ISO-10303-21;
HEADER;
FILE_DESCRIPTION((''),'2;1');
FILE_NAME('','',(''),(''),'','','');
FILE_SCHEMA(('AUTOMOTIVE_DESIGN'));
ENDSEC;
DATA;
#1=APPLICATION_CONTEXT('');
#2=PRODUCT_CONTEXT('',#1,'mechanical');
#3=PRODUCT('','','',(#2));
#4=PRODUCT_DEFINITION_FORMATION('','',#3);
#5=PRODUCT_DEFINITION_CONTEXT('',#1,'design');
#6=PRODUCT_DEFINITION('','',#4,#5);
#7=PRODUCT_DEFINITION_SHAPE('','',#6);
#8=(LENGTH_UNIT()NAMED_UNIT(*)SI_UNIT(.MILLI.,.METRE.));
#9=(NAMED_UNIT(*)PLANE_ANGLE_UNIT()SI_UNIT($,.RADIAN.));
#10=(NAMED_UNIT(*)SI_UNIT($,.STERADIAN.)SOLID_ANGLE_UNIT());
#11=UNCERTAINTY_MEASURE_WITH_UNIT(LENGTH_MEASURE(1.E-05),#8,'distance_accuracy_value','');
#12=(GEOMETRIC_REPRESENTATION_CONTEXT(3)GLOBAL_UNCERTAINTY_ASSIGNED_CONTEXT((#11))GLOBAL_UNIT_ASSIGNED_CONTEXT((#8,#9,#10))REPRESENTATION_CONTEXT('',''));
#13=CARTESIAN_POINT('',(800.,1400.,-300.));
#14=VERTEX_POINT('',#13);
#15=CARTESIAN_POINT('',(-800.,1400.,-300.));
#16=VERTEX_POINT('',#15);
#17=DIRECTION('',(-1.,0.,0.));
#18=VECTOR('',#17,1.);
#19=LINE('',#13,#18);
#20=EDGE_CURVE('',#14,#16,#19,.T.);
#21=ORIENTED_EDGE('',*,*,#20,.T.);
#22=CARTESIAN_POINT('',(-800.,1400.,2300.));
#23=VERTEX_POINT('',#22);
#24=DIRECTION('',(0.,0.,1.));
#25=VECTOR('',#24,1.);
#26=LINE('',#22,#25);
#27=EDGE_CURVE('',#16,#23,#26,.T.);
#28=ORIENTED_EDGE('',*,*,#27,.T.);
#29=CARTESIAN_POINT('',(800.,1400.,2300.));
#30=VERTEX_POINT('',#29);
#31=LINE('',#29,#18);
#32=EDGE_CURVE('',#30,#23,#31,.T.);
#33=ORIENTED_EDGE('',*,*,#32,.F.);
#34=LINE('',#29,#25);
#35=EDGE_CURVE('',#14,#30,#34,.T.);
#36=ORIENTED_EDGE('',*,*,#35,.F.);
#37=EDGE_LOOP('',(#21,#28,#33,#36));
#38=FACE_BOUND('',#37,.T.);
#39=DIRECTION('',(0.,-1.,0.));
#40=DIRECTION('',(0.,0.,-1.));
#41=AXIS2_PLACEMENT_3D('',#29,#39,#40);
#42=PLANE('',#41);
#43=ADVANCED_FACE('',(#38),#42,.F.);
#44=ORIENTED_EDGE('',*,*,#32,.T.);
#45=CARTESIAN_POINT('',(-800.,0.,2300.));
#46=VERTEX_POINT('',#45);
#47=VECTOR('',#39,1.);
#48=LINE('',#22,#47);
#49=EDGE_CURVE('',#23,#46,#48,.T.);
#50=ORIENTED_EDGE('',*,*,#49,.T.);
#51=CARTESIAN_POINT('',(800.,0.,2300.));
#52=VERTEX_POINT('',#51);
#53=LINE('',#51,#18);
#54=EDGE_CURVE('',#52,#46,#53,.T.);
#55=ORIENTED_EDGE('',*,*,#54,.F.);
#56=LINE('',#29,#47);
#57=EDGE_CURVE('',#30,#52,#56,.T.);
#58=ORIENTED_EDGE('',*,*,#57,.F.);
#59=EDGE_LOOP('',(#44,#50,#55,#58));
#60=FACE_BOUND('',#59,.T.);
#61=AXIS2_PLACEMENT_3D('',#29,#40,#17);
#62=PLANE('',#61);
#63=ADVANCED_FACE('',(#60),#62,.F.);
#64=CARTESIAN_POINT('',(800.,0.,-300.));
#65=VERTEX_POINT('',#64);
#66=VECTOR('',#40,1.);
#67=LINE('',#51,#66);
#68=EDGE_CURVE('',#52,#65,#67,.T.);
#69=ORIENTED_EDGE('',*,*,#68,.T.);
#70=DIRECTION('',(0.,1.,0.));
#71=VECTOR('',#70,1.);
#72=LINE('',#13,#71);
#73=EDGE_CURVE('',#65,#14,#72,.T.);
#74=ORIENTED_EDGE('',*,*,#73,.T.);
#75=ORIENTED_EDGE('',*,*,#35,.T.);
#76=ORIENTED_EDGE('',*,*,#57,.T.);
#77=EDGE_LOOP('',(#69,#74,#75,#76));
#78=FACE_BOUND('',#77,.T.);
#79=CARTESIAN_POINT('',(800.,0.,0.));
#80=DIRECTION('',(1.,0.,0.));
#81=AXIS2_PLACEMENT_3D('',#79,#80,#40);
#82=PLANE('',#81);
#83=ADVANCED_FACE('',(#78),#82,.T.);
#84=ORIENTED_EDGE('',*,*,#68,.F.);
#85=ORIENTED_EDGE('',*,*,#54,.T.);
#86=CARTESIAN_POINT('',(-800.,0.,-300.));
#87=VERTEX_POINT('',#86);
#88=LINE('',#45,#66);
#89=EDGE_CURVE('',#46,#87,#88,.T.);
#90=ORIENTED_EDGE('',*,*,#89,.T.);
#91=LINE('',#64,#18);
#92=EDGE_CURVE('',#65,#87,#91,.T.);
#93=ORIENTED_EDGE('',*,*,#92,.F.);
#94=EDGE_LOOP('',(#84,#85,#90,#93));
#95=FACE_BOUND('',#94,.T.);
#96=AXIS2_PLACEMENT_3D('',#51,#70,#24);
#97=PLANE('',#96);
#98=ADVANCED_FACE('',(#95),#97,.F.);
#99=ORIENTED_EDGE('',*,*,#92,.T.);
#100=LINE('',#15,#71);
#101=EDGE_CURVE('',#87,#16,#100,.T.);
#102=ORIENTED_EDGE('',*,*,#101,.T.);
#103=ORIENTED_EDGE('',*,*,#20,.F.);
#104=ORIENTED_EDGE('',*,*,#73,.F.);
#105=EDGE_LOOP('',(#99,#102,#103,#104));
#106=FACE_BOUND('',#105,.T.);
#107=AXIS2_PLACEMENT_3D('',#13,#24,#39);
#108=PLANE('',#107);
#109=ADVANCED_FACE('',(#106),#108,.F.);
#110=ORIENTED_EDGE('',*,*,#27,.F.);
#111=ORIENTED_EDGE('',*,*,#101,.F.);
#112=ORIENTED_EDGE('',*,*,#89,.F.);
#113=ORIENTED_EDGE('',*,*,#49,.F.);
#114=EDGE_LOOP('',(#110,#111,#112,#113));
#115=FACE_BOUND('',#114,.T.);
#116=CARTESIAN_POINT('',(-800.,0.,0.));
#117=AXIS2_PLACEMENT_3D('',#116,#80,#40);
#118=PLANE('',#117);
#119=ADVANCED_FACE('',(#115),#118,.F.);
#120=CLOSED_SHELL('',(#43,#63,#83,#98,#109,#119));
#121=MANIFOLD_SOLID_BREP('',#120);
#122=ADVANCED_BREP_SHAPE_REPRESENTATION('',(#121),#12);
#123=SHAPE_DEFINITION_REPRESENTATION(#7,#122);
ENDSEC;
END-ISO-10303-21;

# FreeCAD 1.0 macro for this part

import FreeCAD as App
import Part
import Sketcher
from FreeCAD import Vector
Q = App.Units.Quantity

doc = App.newDocument("Part")
body = doc.addObject("PartDesign::Body", "Body")

# Sketch on YZ plane
sketch1 = body.newObject("Sketcher::SketchObject", "Sketch")
sketch1.AttachmentSupport = (doc.getObject("YZ_Plane"), [""])
sketch1.MapMode = "FlatFace"
sketch1.addGeometry([
    Part.LineSegment(Vector(1400, 2300, 0), Vector(0, 2300, 0)),
    Part.LineSegment(Vector(0, 2300, 0), Vector(0, -300, 0)),
    Part.LineSegment(Vector(0, -300, 0), Vector(1400, -300, 0)),
    Part.LineSegment(Vector(1400, -300, 0), Vector(1400, 2300, 0)),
], False)
sketch1.addConstraint([
    Sketcher.Constraint("Coincident", 0, 2, 1, 1),
    Sketcher.Constraint("Coincident", 1, 2, 2, 1),
    Sketcher.Constraint("Coincident", 2, 2, 3, 1),
    Sketcher.Constraint("Coincident", 3, 2, 0, 1),
    Sketcher.Constraint("Horizontal", 0),
    Sketcher.Constraint("Vertical", 1),
    Sketcher.Constraint("Horizontal", 2),
    Sketcher.Constraint("Vertical", 3),
    Sketcher.Constraint("PointOnObject", 0, 2, -2),
    Sketcher.Constraint("DistanceX", 0, 2, 0, 1, Q("1400 mm")),
    Sketcher.Constraint("DistanceY", 1, 2, 1, 1, Q("2600 mm")),
    Sketcher.Constraint("DistanceY", -1, 1, 0, 2, Q("2300 mm")),
])
pad1 = body.newObject("PartDesign::Pad", "Pad")
pad1.Profile = sketch1
pad1.Length = 1600
pad1.Midplane = True

doc.recompute()
